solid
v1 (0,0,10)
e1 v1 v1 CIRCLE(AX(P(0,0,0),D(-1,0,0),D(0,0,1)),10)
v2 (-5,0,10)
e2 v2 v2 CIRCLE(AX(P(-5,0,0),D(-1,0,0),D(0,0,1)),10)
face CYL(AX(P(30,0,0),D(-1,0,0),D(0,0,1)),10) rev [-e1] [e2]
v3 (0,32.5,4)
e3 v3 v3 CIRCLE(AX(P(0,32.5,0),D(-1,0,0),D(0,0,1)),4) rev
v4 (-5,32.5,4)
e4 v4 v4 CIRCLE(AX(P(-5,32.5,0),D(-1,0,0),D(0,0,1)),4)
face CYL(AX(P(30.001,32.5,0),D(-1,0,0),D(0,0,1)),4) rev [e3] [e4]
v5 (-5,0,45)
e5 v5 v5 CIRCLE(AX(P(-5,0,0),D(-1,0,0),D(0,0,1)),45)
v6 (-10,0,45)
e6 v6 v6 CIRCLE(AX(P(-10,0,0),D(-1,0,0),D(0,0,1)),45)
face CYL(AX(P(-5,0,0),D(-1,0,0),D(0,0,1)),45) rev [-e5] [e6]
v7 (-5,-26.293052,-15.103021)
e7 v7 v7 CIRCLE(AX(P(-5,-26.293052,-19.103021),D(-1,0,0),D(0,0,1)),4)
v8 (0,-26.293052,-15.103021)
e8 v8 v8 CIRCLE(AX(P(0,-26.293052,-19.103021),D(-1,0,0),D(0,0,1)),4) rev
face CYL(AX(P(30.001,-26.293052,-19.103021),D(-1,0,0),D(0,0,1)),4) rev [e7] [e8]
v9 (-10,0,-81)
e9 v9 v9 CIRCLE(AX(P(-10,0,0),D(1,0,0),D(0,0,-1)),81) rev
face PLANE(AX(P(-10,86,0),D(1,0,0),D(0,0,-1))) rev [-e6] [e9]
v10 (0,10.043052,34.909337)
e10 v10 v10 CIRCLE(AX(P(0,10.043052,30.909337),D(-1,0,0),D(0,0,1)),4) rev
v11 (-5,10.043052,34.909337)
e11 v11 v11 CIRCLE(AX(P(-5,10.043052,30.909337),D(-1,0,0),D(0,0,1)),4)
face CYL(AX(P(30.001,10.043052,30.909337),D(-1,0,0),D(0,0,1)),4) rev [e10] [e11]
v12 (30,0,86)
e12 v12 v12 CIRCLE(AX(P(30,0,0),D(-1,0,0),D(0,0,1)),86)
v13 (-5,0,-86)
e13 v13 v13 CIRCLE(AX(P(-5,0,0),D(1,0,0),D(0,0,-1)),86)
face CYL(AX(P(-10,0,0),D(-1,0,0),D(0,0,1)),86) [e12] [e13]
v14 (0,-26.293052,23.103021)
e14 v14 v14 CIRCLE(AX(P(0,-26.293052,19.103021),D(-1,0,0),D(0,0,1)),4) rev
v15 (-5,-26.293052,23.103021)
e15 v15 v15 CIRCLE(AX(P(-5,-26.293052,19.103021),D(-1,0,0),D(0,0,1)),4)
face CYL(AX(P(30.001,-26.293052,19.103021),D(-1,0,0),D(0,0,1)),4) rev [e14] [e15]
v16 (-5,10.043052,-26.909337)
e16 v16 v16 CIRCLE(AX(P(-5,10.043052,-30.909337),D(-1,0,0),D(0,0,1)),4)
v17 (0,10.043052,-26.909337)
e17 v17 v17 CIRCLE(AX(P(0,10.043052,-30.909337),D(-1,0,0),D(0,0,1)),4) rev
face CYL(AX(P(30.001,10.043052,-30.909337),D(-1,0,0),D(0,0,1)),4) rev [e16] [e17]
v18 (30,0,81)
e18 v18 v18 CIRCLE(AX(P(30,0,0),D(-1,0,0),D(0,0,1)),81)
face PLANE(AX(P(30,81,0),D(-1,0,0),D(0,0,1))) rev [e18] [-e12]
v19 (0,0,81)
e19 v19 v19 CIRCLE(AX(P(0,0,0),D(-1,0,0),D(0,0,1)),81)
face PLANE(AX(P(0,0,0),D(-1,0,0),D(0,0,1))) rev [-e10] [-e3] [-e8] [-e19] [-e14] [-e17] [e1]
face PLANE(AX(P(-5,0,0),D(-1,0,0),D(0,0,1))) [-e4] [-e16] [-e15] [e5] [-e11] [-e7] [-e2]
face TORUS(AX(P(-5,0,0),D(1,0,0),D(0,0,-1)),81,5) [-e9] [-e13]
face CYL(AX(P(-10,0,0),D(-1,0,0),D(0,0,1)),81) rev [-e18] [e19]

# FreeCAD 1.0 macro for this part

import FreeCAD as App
import Part
import Sketcher

V = App.Vector


def edges_at(feature, points):
    """Names of the edges that pass closest to the given points."""
    edges = feature.Shape.Edges
    near = lambda p: min(range(len(edges)), key=lambda i: edges[i].distToShape(Part.Vertex(*p))[0])
    return sorted({f"Edge{near(p) + 1}" for p in points})

doc = App.newDocument("Part")
body = doc.addObject("PartDesign::Body", "Body")

# Sketch on XY plane
sketch1 = body.newObject("Sketcher::SketchObject", "Sketch")
sketch1.AttachmentSupport = (doc.getObject("XY_Plane"), [""])
sketch1.MapMode = "FlatFace"
sketch1.addGeometry([
    Part.LineSegment(V(0, 0, 0), V(0, 81, 0)),  # 0
    Part.LineSegment(V(0, 81, 0), V(30, 81, 0)),  # 1
    Part.LineSegment(V(30, 81, 0), V(30, 86, 0)),  # 2
    Part.LineSegment(V(30, 86, 0), V(-10, 86, 0)),  # 3
    Part.LineSegment(V(-10, 86, 0), V(-10, 0, 0)),  # 4
    Part.LineSegment(V(-10, 0, 0), V(0, 0, 0)),  # 5
], False)
sketch1.addConstraint([
    Sketcher.Constraint("Coincident", 0, 2, 1, 1),
    Sketcher.Constraint("Coincident", 1, 2, 2, 1),
    Sketcher.Constraint("Coincident", 2, 2, 3, 1),
    Sketcher.Constraint("Coincident", 3, 2, 4, 1),
    Sketcher.Constraint("Coincident", 4, 2, 5, 1),
    Sketcher.Constraint("Coincident", 5, 2, 0, 1),
    Sketcher.Constraint("Vertical", 0),
    Sketcher.Constraint("Horizontal", 1),
    Sketcher.Constraint("Vertical", 2),
    Sketcher.Constraint("Horizontal", 3),
    Sketcher.Constraint("Vertical", 4),
    Sketcher.Constraint("Horizontal", 5),
    Sketcher.Constraint("Coincident", 5, 2, -1, 1),
    Sketcher.Constraint("DistanceX", 1, 1, 1, 2, 30.0),
    Sketcher.Constraint("DistanceX", 3, 2, 3, 1, 40.0),
    Sketcher.Constraint("DistanceY", 0, 1, 0, 2, 81.0),
    Sketcher.Constraint("DistanceY", 2, 1, 2, 2, 5.0),
])
revolution = body.newObject("PartDesign::Revolution", "Revolution")
revolution.Profile = sketch1
revolution.ReferenceAxis = (sketch1, ["H_Axis"])
revolution.Angle = 360
doc.recompute()

fillet = body.newObject("PartDesign::Fillet", "Fillet")
fillet.Base = (revolution, edges_at(revolution, [(-10, -86, 0)]))
fillet.Radius = 5

# Sketch on YZ plane
sketch2 = body.newObject("Sketcher::SketchObject", "Sketch001")
sketch2.AttachmentSupport = (doc.getObject("YZ_Plane"), [""])
sketch2.MapMode = "FlatFace"
sketch2.AttachmentOffset = App.Placement(V(0, 0, -10), App.Rotation())
sketch2.addGeometry(Part.Circle(V(0, 0, 0), V(0, 0, 1), 45), False)
sketch2.addConstraint([
    Sketcher.Constraint("Coincident", 0, 3, -1, 1),
    Sketcher.Constraint("Diameter", 0, 90.0),
])
pocket1 = body.newObject("PartDesign::Pocket", "Pocket")
pocket1.Profile = sketch2
pocket1.Length = 5
pocket1.Reversed = True

# Sketch on YZ plane
sketch3 = body.newObject("Sketcher::SketchObject", "Sketch002")
sketch3.AttachmentSupport = (doc.getObject("YZ_Plane"), [""])
sketch3.MapMode = "FlatFace"
sketch3.AttachmentOffset = App.Placement(V(0, 0, -10), App.Rotation())
sketch3.addGeometry(Part.Circle(V(0, 0, 0), V(0, 0, 1), 10), False)
sketch3.addConstraint([
    Sketcher.Constraint("Coincident", 0, 3, -1, 1),
    Sketcher.Constraint("Diameter", 0, 20.0),
])
pocket2 = body.newObject("PartDesign::Pocket", "Pocket001")
pocket2.Profile = sketch3
pocket2.Type = "ThroughAll"
pocket2.Reversed = True

# Sketch on YZ plane
sketch4 = body.newObject("Sketcher::SketchObject", "Sketch003")
sketch4.AttachmentSupport = (doc.getObject("YZ_Plane"), [""])
sketch4.MapMode = "FlatFace"
sketch4.AttachmentOffset = App.Placement(V(0, 0, -5), App.Rotation())
sketch4.addGeometry(Part.Circle(V(32.5, 0, 0), V(0, 0, 1), 4), False)
sketch4.addConstraint([
    Sketcher.Constraint("PointOnObject", 0, 3, -1),
    Sketcher.Constraint("Diameter", 0, 8.0),
    Sketcher.Constraint("DistanceX", -1, 1, 0, 3, 32.5),
])
pocket3 = body.newObject("PartDesign::Pocket", "Pocket002")
pocket3.Profile = sketch4
pocket3.Type = "UpToFirst"
pocket3.Reversed = True

# Sketch on YZ plane
sketch5 = body.newObject("Sketcher::SketchObject", "Sketch004")
sketch5.AttachmentSupport = (doc.getObject("YZ_Plane"), [""])
sketch5.MapMode = "FlatFace"
sketch5.AttachmentOffset = App.Placement(V(0, 0, -5), App.Rotation())
sketch5.addGeometry(Part.Circle(V(10, 30.9, 0), V(0, 0, 1), 4), False)
sketch5.addConstraint([
    Sketcher.Constraint("Diameter", 0, 8.0),
    Sketcher.Constraint("DistanceX", -1, 1, 0, 3, 10.043052),
    Sketcher.Constraint("DistanceY", -1, 1, 0, 3, 30.909337),
])
pocket4 = body.newObject("PartDesign::Pocket", "Pocket003")
pocket4.Profile = sketch5
pocket4.Type = "UpToFirst"
pocket4.Reversed = True

# Sketch on YZ plane
sketch6 = body.newObject("Sketcher::SketchObject", "Sketch005")
sketch6.AttachmentSupport = (doc.getObject("YZ_Plane"), [""])
sketch6.MapMode = "FlatFace"
sketch6.AttachmentOffset = App.Placement(V(0, 0, -5), App.Rotation())
sketch6.addGeometry(Part.Circle(V(-26.3, 19.1, 0), V(0, 0, 1), 4), False)
sketch6.addConstraint([
    Sketcher.Constraint("Diameter", 0, 8.0),
    Sketcher.Constraint("DistanceY", -1, 1, 0, 3, 19.103021),
    Sketcher.Constraint("DistanceX", 0, 3, -1, 1, 26.293052),
])
pocket5 = body.newObject("PartDesign::Pocket", "Pocket004")
pocket5.Profile = sketch6
pocket5.Type = "UpToFirst"
pocket5.Reversed = True

# Sketch on YZ plane
sketch7 = body.newObject("Sketcher::SketchObject", "Sketch006")
sketch7.AttachmentSupport = (doc.getObject("YZ_Plane"), [""])
sketch7.MapMode = "FlatFace"
sketch7.AttachmentOffset = App.Placement(V(0, 0, -5), App.Rotation())
sketch7.addGeometry(Part.Circle(V(-26.3, -19.1, 0), V(0, 0, 1), 4), False)
sketch7.addConstraint([
    Sketcher.Constraint("Diameter", 0, 8.0),
    Sketcher.Constraint("DistanceY", 0, 3, -1, 1, 19.103021),
    Sketcher.Constraint("DistanceX", 0, 3, -1, 1, 26.293052),
])
pocket6 = body.newObject("PartDesign::Pocket", "Pocket005")
pocket6.Profile = sketch7
pocket6.Type = "UpToFirst"
pocket6.Reversed = True

# Sketch on YZ plane
sketch8 = body.newObject("Sketcher::SketchObject", "Sketch007")
sketch8.AttachmentSupport = (doc.getObject("YZ_Plane"), [""])
sketch8.MapMode = "FlatFace"
sketch8.AttachmentOffset = App.Placement(V(0, 0, -5), App.Rotation())
sketch8.addGeometry(Part.Circle(V(10, -30.9, 0), V(0, 0, 1), 4), False)
sketch8.addConstraint([
    Sketcher.Constraint("Diameter", 0, 8.0),
    Sketcher.Constraint("DistanceX", -1, 1, 0, 3, 10.043052),
    Sketcher.Constraint("DistanceY", 0, 3, -1, 1, 30.909337),
])
pocket7 = body.newObject("PartDesign::Pocket", "Pocket006")
pocket7.Profile = sketch8
pocket7.Type = "UpToFirst"
pocket7.Reversed = True

doc.recompute()
